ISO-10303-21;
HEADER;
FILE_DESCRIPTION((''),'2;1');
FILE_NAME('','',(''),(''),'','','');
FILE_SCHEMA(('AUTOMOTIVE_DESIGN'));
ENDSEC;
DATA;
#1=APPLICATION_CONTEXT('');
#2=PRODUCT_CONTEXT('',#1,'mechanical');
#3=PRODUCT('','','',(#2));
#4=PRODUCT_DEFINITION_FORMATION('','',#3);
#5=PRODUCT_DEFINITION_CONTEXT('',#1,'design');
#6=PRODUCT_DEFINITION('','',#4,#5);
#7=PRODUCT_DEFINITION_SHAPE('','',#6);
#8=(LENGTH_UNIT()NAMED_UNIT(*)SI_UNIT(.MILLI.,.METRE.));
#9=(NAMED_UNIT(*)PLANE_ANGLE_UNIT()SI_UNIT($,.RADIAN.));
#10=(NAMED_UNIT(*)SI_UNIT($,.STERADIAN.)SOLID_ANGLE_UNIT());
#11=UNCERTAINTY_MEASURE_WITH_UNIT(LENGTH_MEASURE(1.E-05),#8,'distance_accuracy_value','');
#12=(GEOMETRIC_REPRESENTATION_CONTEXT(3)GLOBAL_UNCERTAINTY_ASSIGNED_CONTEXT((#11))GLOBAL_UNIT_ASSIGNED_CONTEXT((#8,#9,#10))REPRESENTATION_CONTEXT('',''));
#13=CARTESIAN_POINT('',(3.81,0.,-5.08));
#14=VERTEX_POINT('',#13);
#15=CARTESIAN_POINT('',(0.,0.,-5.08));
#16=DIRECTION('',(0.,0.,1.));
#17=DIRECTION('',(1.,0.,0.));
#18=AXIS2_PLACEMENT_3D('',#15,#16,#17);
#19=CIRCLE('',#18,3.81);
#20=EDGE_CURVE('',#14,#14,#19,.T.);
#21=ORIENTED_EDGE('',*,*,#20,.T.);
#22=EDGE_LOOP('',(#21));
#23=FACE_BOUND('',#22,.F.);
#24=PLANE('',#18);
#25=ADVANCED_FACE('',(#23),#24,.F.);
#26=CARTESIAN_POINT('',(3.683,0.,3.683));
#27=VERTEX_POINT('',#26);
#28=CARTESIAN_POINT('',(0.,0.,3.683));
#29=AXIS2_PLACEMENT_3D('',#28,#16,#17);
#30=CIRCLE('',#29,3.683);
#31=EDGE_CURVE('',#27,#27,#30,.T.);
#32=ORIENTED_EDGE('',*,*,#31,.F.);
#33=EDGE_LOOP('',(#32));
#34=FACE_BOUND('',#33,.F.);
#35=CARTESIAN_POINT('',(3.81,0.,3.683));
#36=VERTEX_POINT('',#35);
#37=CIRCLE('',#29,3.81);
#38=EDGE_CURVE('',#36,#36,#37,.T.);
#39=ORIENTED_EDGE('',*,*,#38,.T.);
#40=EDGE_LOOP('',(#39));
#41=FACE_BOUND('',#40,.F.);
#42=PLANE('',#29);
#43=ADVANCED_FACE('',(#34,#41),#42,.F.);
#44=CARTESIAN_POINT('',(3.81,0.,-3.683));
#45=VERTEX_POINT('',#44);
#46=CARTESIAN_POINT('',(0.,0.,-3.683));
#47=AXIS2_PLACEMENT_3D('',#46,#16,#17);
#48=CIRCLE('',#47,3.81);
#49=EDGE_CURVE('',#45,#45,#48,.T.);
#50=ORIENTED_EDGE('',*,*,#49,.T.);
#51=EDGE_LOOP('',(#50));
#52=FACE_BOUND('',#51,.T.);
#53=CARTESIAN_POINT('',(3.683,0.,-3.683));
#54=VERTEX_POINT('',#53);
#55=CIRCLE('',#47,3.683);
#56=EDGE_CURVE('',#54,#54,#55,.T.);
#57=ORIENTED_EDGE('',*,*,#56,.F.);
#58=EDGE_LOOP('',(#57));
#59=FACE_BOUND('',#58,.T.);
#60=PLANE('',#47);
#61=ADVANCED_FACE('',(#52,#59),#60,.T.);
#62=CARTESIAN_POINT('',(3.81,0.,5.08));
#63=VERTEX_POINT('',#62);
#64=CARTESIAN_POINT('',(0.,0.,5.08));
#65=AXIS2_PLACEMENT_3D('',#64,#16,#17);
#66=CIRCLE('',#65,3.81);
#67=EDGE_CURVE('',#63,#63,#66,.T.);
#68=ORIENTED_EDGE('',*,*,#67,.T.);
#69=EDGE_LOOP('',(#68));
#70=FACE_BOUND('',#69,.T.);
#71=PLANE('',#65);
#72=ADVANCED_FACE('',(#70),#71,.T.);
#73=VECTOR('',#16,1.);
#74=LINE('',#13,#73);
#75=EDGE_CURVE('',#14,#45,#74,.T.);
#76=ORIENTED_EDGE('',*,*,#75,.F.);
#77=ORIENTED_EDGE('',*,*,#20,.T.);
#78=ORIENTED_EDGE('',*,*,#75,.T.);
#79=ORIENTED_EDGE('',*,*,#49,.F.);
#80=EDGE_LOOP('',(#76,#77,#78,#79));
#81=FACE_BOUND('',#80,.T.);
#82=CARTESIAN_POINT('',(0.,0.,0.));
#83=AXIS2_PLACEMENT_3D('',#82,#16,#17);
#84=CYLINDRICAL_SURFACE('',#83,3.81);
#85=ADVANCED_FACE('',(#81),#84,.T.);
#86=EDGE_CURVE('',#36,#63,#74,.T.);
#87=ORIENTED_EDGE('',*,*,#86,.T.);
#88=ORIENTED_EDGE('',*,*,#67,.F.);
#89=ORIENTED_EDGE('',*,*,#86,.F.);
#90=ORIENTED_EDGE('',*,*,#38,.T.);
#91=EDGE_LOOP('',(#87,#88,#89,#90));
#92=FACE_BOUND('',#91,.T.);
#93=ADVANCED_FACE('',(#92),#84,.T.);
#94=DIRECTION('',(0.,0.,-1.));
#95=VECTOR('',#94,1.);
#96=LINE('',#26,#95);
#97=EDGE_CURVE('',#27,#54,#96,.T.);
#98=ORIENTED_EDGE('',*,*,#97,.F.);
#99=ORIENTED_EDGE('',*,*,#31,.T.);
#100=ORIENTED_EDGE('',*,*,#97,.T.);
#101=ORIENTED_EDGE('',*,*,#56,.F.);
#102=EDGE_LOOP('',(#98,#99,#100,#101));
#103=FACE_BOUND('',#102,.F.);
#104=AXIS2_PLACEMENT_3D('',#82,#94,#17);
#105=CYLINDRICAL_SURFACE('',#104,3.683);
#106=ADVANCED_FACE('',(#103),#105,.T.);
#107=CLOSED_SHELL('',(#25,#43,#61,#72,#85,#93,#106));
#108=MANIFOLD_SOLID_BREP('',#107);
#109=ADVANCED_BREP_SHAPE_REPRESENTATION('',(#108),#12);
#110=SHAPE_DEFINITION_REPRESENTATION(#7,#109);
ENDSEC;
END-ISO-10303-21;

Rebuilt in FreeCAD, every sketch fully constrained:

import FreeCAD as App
import Part
import Sketcher
Q = App.Units.Quantity

doc = App.newDocument("Part")
body = doc.addObject("PartDesign::Body", "Body")

# Sketch on XY plane
sketch1 = body.newObject("Sketcher::SketchObject", "Sketch")
sketch1.AttachmentSupport = (doc.getObject("XY_Plane"), [""])
sketch1.MapMode = "FlatFace"
sketch1.addGeometry(Part.Circle(App.Vector(0, 0, 0), App.Vector(0, 0, 1), 3.8), False)
sketch1.addConstraint([
    Sketcher.Constraint("Coincident", 0, 3, -1, 1),
    Sketcher.Constraint("Diameter", 0, Q("0.3 in")),
])
pad1 = body.newObject("PartDesign::Pad", "Pad")
pad1.Profile = sketch1
pad1.Length = Q("0.4 in")
pad1.Midplane = True

# Sketch on XY plane
sketch2 = body.newObject("Sketcher::SketchObject", "Sketch001")
sketch2.AttachmentSupport = (doc.getObject("XY_Plane"), [""])
sketch2.MapMode = "FlatFace"
sketch2.addGeometry([
    Part.Circle(App.Vector(0, 0, 0), App.Vector(0, 0, 1), 3.8),
    Part.Circle(App.Vector(0, 0, 0), App.Vector(0, 0, 1), 3.7),
], False)
sketch2.addConstraint([
    Sketcher.Constraint("Coincident", 0, 3, -1, 1),
    Sketcher.Constraint("Coincident", 1, 3, -1, 1),
    Sketcher.Constraint("Diameter", 0, Q("0.3 in")),
    Sketcher.Constraint("Diameter", 1, Q("0.29 in")),
])
pocket1 = body.newObject("PartDesign::Pocket", "Pocket")
pocket1.Profile = sketch2
pocket1.Length = Q("0.29 in")
pocket1.Midplane = True

doc.recompute()
